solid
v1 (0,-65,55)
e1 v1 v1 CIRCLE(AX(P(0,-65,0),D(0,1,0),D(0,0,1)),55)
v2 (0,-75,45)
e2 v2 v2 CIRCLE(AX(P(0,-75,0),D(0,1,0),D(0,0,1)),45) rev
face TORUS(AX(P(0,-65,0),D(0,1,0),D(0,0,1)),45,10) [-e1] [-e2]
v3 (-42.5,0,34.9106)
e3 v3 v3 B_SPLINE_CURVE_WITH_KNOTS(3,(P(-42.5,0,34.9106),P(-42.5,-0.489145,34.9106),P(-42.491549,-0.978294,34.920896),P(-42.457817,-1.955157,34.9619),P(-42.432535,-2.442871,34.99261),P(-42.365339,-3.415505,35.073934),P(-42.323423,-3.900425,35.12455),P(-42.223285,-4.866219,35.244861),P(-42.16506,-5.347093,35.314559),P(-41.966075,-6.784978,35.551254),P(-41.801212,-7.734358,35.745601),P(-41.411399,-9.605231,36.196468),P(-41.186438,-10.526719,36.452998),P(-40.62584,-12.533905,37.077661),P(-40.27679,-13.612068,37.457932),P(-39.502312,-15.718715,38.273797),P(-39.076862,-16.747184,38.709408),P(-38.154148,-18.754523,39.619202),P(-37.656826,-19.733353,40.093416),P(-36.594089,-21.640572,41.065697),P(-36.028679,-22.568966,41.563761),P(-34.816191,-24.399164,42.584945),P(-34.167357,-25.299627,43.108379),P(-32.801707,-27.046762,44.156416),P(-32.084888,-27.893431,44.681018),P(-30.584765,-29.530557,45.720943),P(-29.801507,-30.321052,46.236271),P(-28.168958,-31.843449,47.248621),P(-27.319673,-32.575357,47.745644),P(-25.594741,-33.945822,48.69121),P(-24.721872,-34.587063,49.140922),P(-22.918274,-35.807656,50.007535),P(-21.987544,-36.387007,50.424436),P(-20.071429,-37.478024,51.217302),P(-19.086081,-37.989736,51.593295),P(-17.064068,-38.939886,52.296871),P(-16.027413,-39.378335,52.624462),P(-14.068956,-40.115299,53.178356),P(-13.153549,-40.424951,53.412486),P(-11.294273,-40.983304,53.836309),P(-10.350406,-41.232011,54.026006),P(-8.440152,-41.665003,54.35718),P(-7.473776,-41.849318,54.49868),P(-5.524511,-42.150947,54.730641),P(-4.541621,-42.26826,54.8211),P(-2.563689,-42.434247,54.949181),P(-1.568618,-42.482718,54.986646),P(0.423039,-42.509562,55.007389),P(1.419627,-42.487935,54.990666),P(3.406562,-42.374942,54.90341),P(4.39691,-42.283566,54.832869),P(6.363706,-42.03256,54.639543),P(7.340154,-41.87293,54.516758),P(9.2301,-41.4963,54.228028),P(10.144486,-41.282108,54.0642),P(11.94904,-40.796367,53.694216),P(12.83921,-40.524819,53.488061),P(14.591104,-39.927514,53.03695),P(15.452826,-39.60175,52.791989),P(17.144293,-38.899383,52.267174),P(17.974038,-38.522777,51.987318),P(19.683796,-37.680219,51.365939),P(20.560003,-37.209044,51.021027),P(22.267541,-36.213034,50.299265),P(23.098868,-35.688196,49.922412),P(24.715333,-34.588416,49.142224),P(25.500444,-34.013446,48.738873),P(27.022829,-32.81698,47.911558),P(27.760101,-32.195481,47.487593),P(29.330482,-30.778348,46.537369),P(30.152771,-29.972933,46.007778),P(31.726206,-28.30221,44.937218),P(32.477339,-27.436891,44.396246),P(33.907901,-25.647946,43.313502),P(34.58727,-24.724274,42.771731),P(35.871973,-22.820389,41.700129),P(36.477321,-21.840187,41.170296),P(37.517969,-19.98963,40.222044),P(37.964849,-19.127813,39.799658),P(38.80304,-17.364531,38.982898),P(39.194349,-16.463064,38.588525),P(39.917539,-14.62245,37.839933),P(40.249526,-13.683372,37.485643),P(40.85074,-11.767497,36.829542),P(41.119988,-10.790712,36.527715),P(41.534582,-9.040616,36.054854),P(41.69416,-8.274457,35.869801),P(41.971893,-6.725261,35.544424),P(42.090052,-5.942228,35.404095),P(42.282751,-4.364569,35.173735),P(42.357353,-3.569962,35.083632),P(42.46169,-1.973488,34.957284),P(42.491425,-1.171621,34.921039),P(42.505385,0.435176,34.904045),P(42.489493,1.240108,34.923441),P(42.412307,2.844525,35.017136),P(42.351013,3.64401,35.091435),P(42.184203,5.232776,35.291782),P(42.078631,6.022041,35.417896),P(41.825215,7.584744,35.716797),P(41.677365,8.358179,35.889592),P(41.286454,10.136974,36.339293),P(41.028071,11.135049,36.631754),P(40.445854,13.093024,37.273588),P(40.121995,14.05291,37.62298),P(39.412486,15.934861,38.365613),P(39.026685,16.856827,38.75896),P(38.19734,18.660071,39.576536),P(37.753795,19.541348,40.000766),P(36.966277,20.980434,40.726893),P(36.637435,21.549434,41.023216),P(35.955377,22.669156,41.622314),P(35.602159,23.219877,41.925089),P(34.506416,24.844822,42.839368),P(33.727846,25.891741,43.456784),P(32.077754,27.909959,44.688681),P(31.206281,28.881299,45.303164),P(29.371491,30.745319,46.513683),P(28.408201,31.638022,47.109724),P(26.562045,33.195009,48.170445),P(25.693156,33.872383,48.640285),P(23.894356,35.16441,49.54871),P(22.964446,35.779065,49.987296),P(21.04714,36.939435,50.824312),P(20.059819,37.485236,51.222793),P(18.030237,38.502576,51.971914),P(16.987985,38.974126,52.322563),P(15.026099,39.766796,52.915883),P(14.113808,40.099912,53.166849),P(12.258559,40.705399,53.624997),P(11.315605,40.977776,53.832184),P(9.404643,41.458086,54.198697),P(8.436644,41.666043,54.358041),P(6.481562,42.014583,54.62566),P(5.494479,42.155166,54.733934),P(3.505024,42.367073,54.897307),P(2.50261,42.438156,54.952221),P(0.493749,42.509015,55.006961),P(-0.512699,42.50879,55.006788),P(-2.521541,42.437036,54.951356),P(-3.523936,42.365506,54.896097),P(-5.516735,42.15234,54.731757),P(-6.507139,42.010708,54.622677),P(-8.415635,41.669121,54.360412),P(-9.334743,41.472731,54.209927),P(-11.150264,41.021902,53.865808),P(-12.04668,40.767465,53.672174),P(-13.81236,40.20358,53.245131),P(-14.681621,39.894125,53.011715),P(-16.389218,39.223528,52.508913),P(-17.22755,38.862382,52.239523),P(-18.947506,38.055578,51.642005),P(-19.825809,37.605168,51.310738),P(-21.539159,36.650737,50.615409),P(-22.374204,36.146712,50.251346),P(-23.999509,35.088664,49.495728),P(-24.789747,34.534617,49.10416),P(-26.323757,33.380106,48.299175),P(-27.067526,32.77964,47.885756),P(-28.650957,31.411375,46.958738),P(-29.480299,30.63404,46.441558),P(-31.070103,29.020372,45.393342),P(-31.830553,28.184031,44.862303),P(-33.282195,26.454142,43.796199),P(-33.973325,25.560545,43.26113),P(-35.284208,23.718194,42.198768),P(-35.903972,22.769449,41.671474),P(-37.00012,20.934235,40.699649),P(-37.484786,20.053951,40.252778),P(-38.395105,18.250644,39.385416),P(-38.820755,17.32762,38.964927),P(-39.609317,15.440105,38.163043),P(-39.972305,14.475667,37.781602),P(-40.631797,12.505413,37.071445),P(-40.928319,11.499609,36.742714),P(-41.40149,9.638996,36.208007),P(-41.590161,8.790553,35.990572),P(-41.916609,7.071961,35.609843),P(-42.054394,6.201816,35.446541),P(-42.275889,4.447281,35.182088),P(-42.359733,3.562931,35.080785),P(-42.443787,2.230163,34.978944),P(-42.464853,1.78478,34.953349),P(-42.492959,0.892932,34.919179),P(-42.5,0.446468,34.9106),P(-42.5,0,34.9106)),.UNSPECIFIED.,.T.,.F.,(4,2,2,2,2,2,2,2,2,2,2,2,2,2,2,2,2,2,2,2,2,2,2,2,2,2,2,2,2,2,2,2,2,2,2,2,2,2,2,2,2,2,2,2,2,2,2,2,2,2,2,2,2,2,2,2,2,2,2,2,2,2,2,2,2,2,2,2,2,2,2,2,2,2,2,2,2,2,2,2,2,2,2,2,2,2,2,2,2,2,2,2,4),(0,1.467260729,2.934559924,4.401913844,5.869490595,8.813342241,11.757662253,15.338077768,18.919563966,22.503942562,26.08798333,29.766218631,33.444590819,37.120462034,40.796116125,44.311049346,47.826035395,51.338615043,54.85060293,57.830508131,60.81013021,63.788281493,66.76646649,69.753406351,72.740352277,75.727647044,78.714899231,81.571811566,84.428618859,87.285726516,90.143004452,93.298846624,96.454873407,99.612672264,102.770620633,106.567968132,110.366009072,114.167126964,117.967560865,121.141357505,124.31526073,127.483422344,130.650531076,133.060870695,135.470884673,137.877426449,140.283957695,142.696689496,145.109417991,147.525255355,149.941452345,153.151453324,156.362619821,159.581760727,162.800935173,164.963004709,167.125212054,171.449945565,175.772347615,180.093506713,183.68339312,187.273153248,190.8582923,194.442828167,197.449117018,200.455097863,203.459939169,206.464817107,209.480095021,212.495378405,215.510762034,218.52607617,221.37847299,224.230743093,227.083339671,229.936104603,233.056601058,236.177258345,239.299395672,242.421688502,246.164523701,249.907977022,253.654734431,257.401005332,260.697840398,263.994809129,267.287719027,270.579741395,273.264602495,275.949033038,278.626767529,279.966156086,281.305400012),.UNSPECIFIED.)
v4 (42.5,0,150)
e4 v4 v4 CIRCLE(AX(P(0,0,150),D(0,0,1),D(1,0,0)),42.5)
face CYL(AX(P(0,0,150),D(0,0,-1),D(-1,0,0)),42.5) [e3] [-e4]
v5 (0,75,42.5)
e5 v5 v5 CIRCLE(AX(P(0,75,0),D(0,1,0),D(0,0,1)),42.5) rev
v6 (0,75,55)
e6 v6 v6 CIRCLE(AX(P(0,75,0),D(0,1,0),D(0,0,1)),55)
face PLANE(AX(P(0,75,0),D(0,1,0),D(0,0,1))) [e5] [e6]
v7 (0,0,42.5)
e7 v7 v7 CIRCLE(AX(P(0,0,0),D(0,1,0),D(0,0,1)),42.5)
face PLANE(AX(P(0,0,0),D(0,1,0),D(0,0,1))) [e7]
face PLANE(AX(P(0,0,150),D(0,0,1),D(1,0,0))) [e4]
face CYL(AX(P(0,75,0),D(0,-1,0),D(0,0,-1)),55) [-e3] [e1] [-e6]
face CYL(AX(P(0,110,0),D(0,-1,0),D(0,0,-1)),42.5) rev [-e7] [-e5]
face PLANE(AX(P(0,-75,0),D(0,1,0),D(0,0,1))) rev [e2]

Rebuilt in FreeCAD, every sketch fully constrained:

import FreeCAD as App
import Part
import Sketcher
Q = App.Units.Quantity


def edges_at(feature, points):
    """Names of the edges that pass closest to the given points."""
    edges = feature.Shape.Edges
    near = lambda p: min(range(len(edges)), key=lambda i: edges[i].distToShape(Part.Vertex(*p))[0])
    return sorted({f"Edge{near(p) + 1}" for p in points})

doc = App.newDocument("Part")
body = doc.addObject("PartDesign::Body", "Body")

sketch1 = body.newObject("Sketcher::SketchObject", "Sketch")
sketch1.AttachmentSupport = (doc.getObject("XZ_Plane"), [""])
sketch1.MapMode = "FlatFace"
sketch1.addGeometry(Part.Circle(App.Vector(0, 0, 0), App.Vector(0, 0, 1), 55), False)
sketch1.addConstraint([
    Sketcher.Constraint("Coincident", 0, 3, -1, 1),
    Sketcher.Constraint("Diameter", 0, Q("110 mm")),
])
pad1 = body.newObject("PartDesign::Pad", "Pad")
pad1.Profile = sketch1
pad1.Length = 150
pad1.Midplane = True

sketch2 = body.newObject("Sketcher::SketchObject", "Sketch001")
sketch2.AttachmentSupport = (doc.getObject("XY_Plane"), [""])
sketch2.MapMode = "FlatFace"
sketch2.addGeometry(Part.Circle(App.Vector(0, 0, 0), App.Vector(0, 0, 1), 42.5), False)
sketch2.addConstraint([
    Sketcher.Constraint("Coincident", 0, 3, -1, 1),
    Sketcher.Constraint("Diameter", 0, Q("85 mm")),
])
pad2 = body.newObject("PartDesign::Pad", "Pad001")
pad2.Profile = sketch2
pad2.Length = 150
doc.recompute()

fillet = body.newObject("PartDesign::Fillet", "Fillet")
fillet.Base = (pad2, edges_at(pad2, [(-55, -75, 0)]))
fillet.Radius = 10

sketch3 = body.newObject("Sketcher::SketchObject", "Sketch002")
sketch3.AttachmentSupport = (doc.getObject("XZ_Plane"), [""])
sketch3.MapMode = "FlatFace"
sketch3.addGeometry(Part.Circle(App.Vector(0, 0, 0), App.Vector(0, 0, 1), 42.5), False)
sketch3.addConstraint([
    Sketcher.Constraint("Coincident", 0, 3, -1, 1),
    Sketcher.Constraint("Diameter", 0, Q("85 mm")),
])
pocket1 = body.newObject("PartDesign::Pocket", "Pocket")
pocket1.Profile = sketch3
pocket1.Length = 110

doc.recompute()
